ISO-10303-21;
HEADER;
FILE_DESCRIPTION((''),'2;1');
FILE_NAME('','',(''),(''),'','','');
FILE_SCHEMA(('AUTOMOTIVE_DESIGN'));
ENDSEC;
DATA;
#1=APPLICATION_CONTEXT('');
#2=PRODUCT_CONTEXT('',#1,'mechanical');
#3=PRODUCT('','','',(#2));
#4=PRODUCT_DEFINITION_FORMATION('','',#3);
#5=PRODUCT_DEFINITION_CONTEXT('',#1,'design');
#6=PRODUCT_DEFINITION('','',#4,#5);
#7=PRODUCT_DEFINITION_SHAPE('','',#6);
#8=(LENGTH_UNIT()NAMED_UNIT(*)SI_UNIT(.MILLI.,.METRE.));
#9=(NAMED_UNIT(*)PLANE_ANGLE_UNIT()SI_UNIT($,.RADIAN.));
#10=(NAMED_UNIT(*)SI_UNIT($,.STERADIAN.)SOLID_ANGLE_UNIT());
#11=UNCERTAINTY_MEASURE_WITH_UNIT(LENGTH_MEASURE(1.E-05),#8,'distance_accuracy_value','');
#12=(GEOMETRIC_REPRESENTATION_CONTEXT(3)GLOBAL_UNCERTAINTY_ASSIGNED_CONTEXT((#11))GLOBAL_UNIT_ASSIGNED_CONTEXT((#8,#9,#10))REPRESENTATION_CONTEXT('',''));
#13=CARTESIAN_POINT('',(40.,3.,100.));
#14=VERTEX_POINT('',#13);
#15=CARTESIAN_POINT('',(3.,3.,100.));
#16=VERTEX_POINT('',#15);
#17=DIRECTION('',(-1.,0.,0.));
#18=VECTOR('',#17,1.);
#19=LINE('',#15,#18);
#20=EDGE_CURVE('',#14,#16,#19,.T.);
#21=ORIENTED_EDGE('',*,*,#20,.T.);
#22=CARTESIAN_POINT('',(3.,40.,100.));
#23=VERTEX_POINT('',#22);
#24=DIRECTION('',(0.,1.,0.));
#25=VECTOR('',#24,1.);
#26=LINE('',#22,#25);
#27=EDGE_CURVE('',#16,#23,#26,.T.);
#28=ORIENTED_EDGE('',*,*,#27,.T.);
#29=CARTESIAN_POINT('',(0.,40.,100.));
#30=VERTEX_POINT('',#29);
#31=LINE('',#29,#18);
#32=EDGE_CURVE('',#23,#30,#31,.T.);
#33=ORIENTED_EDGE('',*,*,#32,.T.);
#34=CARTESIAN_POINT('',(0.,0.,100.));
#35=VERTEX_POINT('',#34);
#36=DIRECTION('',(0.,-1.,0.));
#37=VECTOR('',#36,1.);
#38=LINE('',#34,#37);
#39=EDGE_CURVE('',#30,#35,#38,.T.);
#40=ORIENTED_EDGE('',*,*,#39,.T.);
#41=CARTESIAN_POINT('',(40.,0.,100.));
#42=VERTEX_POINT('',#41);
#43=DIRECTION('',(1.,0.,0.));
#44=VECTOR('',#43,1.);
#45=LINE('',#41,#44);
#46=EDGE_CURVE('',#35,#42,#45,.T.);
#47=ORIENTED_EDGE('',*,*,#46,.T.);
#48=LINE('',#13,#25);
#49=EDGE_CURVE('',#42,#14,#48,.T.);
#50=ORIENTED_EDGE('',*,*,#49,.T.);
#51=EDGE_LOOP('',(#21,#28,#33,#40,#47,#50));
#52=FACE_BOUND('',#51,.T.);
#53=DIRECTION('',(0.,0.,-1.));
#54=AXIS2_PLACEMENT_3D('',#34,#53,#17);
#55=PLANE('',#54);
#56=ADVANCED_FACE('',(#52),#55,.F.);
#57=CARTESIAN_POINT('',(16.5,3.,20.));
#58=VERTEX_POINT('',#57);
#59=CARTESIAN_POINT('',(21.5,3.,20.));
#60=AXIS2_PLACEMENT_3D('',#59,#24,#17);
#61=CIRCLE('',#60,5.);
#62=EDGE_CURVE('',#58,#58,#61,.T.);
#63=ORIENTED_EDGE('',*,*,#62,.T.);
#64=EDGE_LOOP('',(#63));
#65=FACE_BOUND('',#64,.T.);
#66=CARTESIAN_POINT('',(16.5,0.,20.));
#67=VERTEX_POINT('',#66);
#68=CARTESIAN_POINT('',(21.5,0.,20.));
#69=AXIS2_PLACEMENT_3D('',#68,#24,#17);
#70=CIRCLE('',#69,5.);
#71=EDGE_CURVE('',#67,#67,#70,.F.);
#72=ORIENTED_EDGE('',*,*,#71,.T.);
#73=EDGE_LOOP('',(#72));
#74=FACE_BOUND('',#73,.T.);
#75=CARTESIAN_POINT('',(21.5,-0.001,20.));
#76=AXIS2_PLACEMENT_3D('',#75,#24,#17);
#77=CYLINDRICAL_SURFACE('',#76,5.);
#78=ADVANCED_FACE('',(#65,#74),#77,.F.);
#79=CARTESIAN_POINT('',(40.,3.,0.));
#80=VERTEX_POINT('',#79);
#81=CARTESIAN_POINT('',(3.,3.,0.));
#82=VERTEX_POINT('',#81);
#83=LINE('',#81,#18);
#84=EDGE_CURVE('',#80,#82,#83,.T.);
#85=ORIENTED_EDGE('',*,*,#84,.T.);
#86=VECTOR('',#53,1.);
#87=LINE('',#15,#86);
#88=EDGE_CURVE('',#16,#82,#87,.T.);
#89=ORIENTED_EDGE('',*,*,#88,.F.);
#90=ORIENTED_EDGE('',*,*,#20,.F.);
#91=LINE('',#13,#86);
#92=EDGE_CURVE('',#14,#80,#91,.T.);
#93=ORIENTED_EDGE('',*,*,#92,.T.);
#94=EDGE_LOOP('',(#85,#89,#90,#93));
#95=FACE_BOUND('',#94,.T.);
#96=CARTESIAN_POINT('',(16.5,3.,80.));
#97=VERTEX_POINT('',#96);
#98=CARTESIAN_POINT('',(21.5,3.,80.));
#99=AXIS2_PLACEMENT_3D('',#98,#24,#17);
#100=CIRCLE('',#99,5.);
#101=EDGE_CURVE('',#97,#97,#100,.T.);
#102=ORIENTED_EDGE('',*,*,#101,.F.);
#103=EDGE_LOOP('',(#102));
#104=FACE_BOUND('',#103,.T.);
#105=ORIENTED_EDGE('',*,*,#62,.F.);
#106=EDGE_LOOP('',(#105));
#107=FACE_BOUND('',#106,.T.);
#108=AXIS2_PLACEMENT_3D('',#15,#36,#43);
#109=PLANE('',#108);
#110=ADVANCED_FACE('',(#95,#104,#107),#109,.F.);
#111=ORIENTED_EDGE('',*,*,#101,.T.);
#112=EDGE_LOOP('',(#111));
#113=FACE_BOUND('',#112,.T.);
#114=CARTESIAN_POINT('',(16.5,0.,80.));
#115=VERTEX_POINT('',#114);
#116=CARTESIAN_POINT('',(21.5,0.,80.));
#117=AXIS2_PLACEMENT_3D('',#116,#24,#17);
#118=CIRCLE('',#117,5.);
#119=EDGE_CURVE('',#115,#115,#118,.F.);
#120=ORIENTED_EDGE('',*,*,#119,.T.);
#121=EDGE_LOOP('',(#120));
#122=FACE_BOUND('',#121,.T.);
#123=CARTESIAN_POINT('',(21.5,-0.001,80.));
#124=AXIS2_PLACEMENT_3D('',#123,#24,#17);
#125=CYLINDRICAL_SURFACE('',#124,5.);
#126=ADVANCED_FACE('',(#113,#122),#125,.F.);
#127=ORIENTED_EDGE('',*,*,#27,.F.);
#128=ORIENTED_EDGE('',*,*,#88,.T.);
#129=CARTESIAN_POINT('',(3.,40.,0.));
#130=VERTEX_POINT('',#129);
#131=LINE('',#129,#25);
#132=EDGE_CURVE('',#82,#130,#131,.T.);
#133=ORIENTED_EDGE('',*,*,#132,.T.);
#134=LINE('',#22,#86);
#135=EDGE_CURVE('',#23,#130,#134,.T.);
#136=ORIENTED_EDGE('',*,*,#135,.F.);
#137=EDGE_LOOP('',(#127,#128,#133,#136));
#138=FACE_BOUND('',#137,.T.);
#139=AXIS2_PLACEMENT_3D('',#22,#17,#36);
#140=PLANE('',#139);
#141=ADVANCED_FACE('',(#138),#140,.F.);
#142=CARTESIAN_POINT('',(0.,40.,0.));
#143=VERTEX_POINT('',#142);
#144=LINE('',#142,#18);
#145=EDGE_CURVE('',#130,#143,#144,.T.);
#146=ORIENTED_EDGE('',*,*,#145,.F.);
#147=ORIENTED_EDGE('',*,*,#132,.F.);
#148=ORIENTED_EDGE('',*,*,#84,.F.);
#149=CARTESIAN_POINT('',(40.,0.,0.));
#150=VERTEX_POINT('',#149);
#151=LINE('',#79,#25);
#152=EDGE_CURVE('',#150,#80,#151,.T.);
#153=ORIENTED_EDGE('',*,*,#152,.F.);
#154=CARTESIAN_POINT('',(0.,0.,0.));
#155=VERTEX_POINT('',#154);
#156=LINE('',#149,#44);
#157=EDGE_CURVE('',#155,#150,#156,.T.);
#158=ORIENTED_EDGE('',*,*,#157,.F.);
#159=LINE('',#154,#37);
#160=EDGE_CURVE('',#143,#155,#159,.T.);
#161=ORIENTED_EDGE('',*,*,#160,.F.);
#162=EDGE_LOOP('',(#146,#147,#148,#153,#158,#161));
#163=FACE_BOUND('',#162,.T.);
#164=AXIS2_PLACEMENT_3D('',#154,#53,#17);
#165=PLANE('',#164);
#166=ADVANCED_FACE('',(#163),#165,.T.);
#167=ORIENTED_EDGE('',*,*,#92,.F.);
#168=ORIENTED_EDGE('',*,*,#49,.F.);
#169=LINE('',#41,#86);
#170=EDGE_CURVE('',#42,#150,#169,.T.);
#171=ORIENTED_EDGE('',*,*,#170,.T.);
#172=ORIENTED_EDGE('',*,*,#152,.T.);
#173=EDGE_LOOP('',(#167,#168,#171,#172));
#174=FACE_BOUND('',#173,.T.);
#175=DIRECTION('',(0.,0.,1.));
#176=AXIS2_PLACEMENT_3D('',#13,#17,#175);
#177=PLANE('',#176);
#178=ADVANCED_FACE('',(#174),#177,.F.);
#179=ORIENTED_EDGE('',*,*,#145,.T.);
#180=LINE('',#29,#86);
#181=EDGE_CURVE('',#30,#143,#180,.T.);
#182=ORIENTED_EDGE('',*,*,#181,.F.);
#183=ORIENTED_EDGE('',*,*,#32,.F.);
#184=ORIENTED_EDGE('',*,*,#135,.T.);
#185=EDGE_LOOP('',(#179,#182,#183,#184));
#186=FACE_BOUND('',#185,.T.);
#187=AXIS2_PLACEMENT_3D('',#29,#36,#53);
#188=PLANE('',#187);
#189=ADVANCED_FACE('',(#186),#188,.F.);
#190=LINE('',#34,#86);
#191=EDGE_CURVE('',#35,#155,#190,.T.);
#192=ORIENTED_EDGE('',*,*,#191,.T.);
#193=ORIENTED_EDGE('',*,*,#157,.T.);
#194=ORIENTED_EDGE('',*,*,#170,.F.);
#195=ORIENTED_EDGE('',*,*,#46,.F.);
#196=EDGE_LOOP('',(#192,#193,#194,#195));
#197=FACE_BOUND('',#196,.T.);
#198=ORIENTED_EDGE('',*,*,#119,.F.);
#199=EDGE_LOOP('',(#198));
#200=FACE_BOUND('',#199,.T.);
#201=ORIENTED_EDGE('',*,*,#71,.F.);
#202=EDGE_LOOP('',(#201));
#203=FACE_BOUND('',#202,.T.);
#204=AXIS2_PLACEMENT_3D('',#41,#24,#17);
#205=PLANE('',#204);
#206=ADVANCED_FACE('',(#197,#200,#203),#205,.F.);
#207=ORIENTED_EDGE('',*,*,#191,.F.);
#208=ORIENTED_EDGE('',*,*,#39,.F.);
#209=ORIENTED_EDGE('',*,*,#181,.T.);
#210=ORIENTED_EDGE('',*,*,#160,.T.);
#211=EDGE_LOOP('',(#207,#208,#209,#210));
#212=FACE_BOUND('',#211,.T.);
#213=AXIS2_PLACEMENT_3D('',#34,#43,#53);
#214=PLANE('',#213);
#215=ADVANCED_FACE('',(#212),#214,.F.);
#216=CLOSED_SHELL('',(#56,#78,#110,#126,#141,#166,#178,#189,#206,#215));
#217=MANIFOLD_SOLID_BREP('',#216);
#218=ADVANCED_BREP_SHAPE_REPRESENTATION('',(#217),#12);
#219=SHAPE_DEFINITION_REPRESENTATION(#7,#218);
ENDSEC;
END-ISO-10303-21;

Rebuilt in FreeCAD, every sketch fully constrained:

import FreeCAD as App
import Part
import Sketcher

V = App.Vector
Q = App.Units.Quantity


def add_polygon(sketch, points):
    """Adds a closed chain of lines whose ends are joined by coincident constraints."""
    first, n = sketch.GeometryCount, len(points)
    for a, b in zip(points, points[1:] + points[:1]):
        sketch.addGeometry(Part.LineSegment(App.Vector(*a, 0), App.Vector(*b, 0)), False)
    for i in range(n):
        sketch.addConstraint(Sketcher.Constraint("Coincident", first + i, 2, first + (i + 1) % n, 1))

doc = App.newDocument("Part")
params = doc.addObject("Spreadsheet::Sheet", "Params")
for row, (alias, value) in enumerate([
    ("sketch1_width", "40 mm"),
    ("sketch1_width2", "37 mm"),
    ("pad1_length", "100 mm"),
    ("sketch2_diameter", "10 mm"),
    ("sketch3_diameter", "10 mm"),
], start=1):
    params.set(f"A{row}", alias)
    params.set(f"B{row}", "=" + value)
    params.setAlias(f"B{row}", alias)

body = doc.addObject("PartDesign::Body", "Body")

# Sketch on XY plane
sketch1 = body.newObject("Sketcher::SketchObject", "Sketch")
sketch1.AttachmentSupport = (doc.getObject("XY_Plane"), [""])
sketch1.MapMode = "FlatFace"
add_polygon(sketch1, [(0, 40), (0, 0), (40, 0), (40, 3), (3, 3), (3, 40)])  # lines 0-5
sketch1.addConstraint([
    Sketcher.Constraint("Vertical", 0),
    Sketcher.Constraint("Horizontal", 1),
    Sketcher.Constraint("Vertical", 2),
    Sketcher.Constraint("Horizontal", 3),
    Sketcher.Constraint("Vertical", 4),
    Sketcher.Constraint("Horizontal", 5),
    Sketcher.Constraint("Coincident", 0, 2, -1, 1),
    Sketcher.Constraint("Equal", 1, 0),
    Sketcher.Constraint("Equal", 5, 2),
    Sketcher.Constraint("DistanceX", 1, 1, 1, 2, Q("40 mm")),
    Sketcher.Constraint("DistanceX", 3, 2, 3, 1, Q("37 mm")),
])
sketch1.setExpression("Constraints[15]", "Params.sketch1_width")
sketch1.setExpression("Constraints[16]", "Params.sketch1_width2")
pad1 = body.newObject("PartDesign::Pad", "Pad")
pad1.Profile = sketch1
pad1.setExpression("Length", "Params.pad1_length")

# Sketch on XZ plane
sketch2 = body.newObject("Sketcher::SketchObject", "Sketch001")
sketch2.AttachmentSupport = (doc.getObject("XZ_Plane"), [""])
sketch2.MapMode = "FlatFace"
sketch2.AttachmentOffset = App.Placement(V(0, 0, -3), App.Rotation())
sketch2.addGeometry(Part.Circle(V(21.5, 20, 0), V(0, 0, 1), 5), False)
sketch2.addConstraint([
    Sketcher.Constraint("Diameter", 0, Q("10 mm")),
    Sketcher.Constraint("DistanceY", -1, 1, 0, 3, Q("20 mm")),
    Sketcher.Constraint("DistanceX", -1, 1, 0, 3, Q("21.5 mm")),
])
sketch2.setExpression("Constraints[0]", "Params.sketch2_diameter")
pocket1 = body.newObject("PartDesign::Pocket", "Pocket")
pocket1.Profile = sketch2
pocket1.Type = "UpToFirst"
pocket1.Reversed = True

# Sketch on XZ plane
sketch3 = body.newObject("Sketcher::SketchObject", "Sketch002")
sketch3.AttachmentSupport = (doc.getObject("XZ_Plane"), [""])
sketch3.MapMode = "FlatFace"
sketch3.AttachmentOffset = App.Placement(V(0, 0, -3), App.Rotation())
sketch3.addGeometry(Part.Circle(V(21.5, 80, 0), V(0, 0, 1), 5), False)
sketch3.addConstraint([
    Sketcher.Constraint("Diameter", 0, Q("10 mm")),
    Sketcher.Constraint("DistanceY", -1, 1, 0, 3, Q("80 mm")),
    Sketcher.Constraint("DistanceX", -1, 1, 0, 3, Q("21.5 mm")),
])
sketch3.setExpression("Constraints[0]", "Params.sketch3_diameter")
pocket2 = body.newObject("PartDesign::Pocket", "Pocket001")
pocket2.Profile = sketch3
pocket2.Type = "UpToFirst"
pocket2.Reversed = True

doc.recompute()
